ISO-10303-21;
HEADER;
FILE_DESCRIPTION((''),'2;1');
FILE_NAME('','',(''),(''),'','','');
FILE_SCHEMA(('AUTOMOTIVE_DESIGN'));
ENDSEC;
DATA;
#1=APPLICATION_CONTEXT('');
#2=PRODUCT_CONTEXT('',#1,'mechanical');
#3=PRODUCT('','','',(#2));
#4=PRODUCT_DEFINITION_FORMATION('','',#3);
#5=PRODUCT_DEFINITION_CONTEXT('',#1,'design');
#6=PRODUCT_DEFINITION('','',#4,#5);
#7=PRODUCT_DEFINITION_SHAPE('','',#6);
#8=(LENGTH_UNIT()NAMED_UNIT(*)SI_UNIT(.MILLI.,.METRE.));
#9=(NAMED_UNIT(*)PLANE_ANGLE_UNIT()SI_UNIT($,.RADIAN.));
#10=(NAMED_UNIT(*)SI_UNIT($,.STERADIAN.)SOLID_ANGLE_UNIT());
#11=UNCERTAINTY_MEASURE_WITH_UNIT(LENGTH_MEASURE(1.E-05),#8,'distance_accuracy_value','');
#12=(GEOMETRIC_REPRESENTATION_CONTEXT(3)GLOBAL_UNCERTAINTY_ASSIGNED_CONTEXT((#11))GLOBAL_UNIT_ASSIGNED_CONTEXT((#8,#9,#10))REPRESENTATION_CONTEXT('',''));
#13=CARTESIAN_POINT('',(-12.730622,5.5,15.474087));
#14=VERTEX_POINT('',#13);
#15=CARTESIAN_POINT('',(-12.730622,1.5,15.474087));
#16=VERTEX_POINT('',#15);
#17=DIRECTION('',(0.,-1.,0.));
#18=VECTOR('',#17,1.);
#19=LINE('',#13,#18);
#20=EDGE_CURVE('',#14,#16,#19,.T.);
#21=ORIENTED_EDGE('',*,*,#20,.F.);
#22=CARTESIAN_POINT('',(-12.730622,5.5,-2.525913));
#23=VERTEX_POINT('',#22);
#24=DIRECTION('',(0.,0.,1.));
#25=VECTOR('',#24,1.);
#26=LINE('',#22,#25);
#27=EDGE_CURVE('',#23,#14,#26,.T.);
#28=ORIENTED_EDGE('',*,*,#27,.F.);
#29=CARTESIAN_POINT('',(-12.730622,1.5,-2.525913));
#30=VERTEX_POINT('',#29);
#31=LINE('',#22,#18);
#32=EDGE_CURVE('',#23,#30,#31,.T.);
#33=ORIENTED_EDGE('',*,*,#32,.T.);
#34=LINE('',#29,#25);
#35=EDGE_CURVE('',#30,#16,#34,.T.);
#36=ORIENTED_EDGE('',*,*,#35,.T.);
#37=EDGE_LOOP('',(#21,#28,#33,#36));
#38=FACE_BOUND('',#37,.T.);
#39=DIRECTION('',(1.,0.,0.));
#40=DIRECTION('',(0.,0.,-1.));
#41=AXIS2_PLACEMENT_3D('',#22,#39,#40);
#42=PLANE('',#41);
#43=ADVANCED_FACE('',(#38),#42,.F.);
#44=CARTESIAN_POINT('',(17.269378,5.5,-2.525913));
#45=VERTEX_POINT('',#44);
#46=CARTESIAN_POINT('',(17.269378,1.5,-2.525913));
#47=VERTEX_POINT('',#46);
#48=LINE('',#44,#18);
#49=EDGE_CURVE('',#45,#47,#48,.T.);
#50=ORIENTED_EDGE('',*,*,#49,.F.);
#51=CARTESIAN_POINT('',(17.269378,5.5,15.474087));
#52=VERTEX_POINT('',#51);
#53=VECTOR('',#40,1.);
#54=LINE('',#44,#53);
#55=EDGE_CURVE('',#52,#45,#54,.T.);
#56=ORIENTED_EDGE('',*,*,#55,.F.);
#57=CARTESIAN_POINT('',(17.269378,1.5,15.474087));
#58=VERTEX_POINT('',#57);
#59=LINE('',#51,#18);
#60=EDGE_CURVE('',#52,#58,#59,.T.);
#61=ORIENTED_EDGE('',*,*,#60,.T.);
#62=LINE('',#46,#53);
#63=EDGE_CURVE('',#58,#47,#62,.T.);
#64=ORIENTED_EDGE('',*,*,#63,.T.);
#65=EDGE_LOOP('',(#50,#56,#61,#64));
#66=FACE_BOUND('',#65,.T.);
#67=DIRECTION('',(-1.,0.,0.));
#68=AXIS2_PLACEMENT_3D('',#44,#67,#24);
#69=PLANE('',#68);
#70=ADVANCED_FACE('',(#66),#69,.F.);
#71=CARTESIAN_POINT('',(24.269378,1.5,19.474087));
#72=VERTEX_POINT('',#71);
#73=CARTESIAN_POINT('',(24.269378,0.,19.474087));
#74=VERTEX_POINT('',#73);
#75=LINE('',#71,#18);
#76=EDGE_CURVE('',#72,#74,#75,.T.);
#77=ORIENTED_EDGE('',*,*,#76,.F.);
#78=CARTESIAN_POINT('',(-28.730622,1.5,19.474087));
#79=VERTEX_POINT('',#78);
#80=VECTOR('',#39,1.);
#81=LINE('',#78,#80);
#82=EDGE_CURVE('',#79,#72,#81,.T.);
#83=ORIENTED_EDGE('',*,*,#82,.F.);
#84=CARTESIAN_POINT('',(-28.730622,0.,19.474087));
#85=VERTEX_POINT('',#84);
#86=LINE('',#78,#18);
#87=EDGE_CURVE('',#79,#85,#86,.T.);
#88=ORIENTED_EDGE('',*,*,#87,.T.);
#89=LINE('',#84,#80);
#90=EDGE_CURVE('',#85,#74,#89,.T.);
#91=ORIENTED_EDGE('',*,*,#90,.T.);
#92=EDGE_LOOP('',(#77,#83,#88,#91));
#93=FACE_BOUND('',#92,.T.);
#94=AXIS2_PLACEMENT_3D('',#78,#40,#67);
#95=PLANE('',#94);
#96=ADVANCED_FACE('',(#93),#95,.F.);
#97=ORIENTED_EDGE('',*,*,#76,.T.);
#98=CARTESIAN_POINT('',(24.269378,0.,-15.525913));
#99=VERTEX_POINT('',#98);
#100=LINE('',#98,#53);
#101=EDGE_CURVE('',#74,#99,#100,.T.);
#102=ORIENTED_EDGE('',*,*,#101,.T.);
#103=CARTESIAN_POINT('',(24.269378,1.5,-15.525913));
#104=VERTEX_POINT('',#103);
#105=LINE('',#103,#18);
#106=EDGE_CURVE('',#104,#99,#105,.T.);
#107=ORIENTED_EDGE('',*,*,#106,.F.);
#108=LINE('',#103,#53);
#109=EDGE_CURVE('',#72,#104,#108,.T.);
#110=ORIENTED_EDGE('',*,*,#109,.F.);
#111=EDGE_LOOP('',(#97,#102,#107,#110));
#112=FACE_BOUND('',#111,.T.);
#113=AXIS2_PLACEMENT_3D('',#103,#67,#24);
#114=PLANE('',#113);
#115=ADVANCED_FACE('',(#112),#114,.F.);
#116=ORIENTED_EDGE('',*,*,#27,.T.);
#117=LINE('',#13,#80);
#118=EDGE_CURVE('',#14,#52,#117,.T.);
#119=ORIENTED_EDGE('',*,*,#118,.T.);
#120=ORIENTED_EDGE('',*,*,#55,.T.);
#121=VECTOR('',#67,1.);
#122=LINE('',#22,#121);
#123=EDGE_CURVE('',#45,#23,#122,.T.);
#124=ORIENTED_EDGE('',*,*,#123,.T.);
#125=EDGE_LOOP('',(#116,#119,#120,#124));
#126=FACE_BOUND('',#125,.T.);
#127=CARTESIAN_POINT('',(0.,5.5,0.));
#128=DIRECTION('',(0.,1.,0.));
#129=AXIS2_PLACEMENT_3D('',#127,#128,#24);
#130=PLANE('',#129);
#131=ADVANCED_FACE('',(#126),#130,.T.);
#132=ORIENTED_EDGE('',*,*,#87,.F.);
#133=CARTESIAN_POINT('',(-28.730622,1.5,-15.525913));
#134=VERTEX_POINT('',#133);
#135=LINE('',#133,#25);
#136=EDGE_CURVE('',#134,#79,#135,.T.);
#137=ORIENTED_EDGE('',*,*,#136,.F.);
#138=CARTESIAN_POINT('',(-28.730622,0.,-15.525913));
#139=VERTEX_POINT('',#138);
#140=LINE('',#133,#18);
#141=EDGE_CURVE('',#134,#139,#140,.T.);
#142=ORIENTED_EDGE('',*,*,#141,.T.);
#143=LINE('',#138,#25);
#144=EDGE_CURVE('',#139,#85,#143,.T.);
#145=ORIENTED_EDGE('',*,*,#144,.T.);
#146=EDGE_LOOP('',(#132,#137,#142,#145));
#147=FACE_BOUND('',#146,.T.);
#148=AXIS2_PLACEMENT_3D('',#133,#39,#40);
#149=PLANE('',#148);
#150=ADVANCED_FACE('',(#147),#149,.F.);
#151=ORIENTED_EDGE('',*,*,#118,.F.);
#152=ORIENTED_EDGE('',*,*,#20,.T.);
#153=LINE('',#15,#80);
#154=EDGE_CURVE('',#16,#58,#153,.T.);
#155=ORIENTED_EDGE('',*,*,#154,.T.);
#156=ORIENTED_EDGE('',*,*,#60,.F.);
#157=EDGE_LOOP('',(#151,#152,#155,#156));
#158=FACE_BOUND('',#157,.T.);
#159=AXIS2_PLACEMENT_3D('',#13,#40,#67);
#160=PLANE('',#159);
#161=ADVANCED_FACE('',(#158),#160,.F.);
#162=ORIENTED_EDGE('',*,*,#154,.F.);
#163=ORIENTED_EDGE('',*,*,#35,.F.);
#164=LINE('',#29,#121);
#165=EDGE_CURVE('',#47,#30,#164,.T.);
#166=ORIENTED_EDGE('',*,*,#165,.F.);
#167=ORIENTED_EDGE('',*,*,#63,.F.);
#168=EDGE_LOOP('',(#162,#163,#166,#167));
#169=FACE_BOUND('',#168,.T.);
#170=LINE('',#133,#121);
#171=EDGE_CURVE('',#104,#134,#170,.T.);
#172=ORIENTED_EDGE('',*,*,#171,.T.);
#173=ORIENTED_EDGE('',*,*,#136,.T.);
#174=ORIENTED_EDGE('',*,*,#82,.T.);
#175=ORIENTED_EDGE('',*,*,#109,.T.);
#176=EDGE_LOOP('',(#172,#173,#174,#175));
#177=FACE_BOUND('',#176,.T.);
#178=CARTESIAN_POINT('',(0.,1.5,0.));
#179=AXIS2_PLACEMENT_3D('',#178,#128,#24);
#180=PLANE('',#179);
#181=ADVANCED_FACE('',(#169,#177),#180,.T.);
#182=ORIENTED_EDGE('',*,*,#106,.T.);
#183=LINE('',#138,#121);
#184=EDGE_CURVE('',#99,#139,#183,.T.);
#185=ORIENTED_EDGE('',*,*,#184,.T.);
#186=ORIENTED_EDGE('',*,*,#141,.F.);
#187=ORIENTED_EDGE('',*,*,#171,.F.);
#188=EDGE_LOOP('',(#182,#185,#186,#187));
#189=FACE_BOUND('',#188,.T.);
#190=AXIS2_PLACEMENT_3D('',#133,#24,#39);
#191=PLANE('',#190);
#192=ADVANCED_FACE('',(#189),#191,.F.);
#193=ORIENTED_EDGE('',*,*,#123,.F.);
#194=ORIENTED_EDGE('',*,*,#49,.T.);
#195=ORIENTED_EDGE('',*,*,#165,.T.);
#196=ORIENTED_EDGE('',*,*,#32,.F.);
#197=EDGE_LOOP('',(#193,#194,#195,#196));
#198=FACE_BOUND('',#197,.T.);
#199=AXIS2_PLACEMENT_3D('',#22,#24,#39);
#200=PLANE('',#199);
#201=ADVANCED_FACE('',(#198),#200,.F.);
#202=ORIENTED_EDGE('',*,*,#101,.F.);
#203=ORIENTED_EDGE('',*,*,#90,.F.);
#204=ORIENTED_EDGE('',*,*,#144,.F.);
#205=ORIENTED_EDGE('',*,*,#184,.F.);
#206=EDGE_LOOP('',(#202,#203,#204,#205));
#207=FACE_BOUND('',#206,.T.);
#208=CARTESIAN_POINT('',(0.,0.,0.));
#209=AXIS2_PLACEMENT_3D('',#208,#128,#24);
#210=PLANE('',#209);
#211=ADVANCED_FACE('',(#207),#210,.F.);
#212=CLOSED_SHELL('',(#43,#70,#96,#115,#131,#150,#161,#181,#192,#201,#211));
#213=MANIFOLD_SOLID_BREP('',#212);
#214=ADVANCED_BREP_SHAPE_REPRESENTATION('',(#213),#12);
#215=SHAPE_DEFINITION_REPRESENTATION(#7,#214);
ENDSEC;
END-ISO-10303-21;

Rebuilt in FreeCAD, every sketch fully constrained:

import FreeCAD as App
import Part
import Sketcher

V = App.Vector
Q = App.Units.Quantity


def add_polygon(sketch, points):
    """Adds a closed chain of lines whose ends are joined by coincident constraints."""
    first, n = sketch.GeometryCount, len(points)
    for a, b in zip(points, points[1:] + points[:1]):
        sketch.addGeometry(Part.LineSegment(App.Vector(*a, 0), App.Vector(*b, 0)), False)
    for i in range(n):
        sketch.addConstraint(Sketcher.Constraint("Coincident", first + i, 2, first + (i + 1) % n, 1))

doc = App.newDocument("Part")
body = doc.addObject("PartDesign::Body", "Body")

# Sketch on XZ plane
sketch1 = doc.addObject("Sketcher::SketchObject", "Sketch")
body.addObject(sketch1)
sketch1.AttachmentSupport = (doc.XZ_Plane, [""])
sketch1.MapMode = "FlatFace"
add_polygon(sketch1, [(-28.730622, -15.525913), (-28.730622, 19.474087), (24.269378, 19.474087), (24.269378, -15.525913)])  # lines 0-3
sketch1.addConstraint(Sketcher.Constraint("Vertical", 0))
sketch1.addConstraint(Sketcher.Constraint("Horizontal", 1))
sketch1.addConstraint(Sketcher.Constraint("Vertical", 2))
sketch1.addConstraint(Sketcher.Constraint("Horizontal", 3))
sketch1.addConstraint(Sketcher.Constraint("DistanceX", 1, 1, 1, 2, Q("53 mm")))
sketch1.addConstraint(Sketcher.Constraint("DistanceY", 0, 1, 0, 2, Q("35 mm")))
sketch1.addConstraint(Sketcher.Constraint("DistanceX", 0, 2, -1, 1, Q("28.730622 mm")))
sketch1.addConstraint(Sketcher.Constraint("DistanceY", -1, 1, 0, 2, Q("19.474087 mm")))
pad1 = doc.addObject("PartDesign::Pad", "Pad")
body.addObject(pad1)
pad1.Profile = sketch1
pad1.Length = 1.5
pad1.Reversed = True

# Sketch on XZ plane
sketch2 = doc.addObject("Sketcher::SketchObject", "Sketch001")
body.addObject(sketch2)
sketch2.AttachmentSupport = (doc.XZ_Plane, [""])
sketch2.MapMode = "FlatFace"
sketch2.AttachmentOffset = App.Placement(V(0, 0, -1.5), App.Rotation())
add_polygon(sketch2, [(-12.730622, -2.525913), (-12.730622, 15.474087), (17.269378, 15.474087), (17.269378, -2.525913)])  # lines 0-3
sketch2.addConstraint(Sketcher.Constraint("Vertical", 0))
sketch2.addConstraint(Sketcher.Constraint("Horizontal", 1))
sketch2.addConstraint(Sketcher.Constraint("Vertical", 2))
sketch2.addConstraint(Sketcher.Constraint("Horizontal", 3))
sketch2.addConstraint(Sketcher.Constraint("DistanceX", 1, 1, 1, 2, Q("30 mm")))
sketch2.addConstraint(Sketcher.Constraint("DistanceY", 0, 1, 0, 2, Q("18 mm")))
sketch2.addConstraint(Sketcher.Constraint("DistanceX", 0, 2, -1, 1, Q("12.730622 mm")))
sketch2.addConstraint(Sketcher.Constraint("DistanceY", -1, 1, 0, 2, Q("15.474087 mm")))
pad2 = doc.addObject("PartDesign::Pad", "Pad001")
body.addObject(pad2)
pad2.Profile = sketch2
pad2.Length = 4
pad2.Reversed = True

doc.recompute()
